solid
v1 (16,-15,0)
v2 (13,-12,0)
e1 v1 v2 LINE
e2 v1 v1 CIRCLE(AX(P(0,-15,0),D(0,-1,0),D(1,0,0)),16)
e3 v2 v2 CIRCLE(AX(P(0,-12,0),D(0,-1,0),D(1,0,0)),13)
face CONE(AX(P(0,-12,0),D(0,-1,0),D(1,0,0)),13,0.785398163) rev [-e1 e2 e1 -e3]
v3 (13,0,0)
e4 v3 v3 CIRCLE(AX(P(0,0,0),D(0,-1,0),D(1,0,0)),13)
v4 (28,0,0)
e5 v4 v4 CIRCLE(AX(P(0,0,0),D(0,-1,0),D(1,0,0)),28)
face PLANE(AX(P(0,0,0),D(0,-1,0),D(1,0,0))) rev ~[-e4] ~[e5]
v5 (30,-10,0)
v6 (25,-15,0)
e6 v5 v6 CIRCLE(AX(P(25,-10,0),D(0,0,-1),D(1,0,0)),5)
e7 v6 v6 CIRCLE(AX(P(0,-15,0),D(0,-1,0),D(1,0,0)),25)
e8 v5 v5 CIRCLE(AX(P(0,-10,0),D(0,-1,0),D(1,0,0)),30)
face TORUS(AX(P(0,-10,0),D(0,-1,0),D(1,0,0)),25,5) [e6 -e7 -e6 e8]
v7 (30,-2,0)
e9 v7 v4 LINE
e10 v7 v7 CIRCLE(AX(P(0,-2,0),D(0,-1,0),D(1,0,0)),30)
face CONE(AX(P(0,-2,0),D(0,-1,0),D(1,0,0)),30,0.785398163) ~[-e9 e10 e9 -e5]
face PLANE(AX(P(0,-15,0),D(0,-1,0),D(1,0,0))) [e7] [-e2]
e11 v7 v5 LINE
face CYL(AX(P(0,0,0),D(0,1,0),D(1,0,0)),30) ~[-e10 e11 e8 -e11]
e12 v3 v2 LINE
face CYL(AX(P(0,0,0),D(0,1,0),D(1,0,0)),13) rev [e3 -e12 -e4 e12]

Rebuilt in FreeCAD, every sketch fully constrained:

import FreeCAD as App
import Part
import Sketcher


def edges_at(feature, points):
    """Names of the edges that pass closest to the given points."""
    edges = feature.Shape.Edges
    near = lambda p: min(range(len(edges)), key=lambda i: edges[i].distToShape(Part.Vertex(*p))[0])
    return sorted({f"Edge{near(p) + 1}" for p in points})

doc = App.newDocument("Part")
body = doc.addObject("PartDesign::Body", "Body")

sketch1 = body.newObject("Sketcher::SketchObject", "Sketch")
sketch1.AttachmentSupport = (doc.getObject("XZ_Plane"), [""])
sketch1.MapMode = "FlatFace"
sketch1.addGeometry([
    Part.Circle(App.Vector(0, 0, 0), App.Vector(0, 0, 1), 30),
    Part.Circle(App.Vector(0, 0, 0), App.Vector(0, 0, 1), 13),
], False)
sketch1.addConstraint([
    Sketcher.Constraint("Coincident", 0, 3, -1, 1),
    Sketcher.Constraint("Coincident", 1, 3, -1, 1),
    Sketcher.Constraint("Diameter", 0, 60.0),
    Sketcher.Constraint("Diameter", 1, 26.0),
])
pad1 = body.newObject("PartDesign::Pad", "Pad")
pad1.Profile = sketch1
pad1.Length = 15
doc.recompute()

fillet = body.newObject("PartDesign::Fillet", "Fillet")
fillet.Base = (pad1, edges_at(pad1, [(-30, -15, 0)]))
fillet.Radius = 5
doc.recompute()

chamfer = body.newObject("PartDesign::Chamfer", "Chamfer")
chamfer.Base = (fillet, edges_at(fillet, [(-13, -15, 0)]))
chamfer.Size = 3
doc.recompute()

chamfer2 = body.newObject("PartDesign::Chamfer", "Chamfer001")
chamfer2.Base = (chamfer, edges_at(chamfer, [(-30, 0, 0)]))
chamfer2.Size = 2

doc.recompute()
